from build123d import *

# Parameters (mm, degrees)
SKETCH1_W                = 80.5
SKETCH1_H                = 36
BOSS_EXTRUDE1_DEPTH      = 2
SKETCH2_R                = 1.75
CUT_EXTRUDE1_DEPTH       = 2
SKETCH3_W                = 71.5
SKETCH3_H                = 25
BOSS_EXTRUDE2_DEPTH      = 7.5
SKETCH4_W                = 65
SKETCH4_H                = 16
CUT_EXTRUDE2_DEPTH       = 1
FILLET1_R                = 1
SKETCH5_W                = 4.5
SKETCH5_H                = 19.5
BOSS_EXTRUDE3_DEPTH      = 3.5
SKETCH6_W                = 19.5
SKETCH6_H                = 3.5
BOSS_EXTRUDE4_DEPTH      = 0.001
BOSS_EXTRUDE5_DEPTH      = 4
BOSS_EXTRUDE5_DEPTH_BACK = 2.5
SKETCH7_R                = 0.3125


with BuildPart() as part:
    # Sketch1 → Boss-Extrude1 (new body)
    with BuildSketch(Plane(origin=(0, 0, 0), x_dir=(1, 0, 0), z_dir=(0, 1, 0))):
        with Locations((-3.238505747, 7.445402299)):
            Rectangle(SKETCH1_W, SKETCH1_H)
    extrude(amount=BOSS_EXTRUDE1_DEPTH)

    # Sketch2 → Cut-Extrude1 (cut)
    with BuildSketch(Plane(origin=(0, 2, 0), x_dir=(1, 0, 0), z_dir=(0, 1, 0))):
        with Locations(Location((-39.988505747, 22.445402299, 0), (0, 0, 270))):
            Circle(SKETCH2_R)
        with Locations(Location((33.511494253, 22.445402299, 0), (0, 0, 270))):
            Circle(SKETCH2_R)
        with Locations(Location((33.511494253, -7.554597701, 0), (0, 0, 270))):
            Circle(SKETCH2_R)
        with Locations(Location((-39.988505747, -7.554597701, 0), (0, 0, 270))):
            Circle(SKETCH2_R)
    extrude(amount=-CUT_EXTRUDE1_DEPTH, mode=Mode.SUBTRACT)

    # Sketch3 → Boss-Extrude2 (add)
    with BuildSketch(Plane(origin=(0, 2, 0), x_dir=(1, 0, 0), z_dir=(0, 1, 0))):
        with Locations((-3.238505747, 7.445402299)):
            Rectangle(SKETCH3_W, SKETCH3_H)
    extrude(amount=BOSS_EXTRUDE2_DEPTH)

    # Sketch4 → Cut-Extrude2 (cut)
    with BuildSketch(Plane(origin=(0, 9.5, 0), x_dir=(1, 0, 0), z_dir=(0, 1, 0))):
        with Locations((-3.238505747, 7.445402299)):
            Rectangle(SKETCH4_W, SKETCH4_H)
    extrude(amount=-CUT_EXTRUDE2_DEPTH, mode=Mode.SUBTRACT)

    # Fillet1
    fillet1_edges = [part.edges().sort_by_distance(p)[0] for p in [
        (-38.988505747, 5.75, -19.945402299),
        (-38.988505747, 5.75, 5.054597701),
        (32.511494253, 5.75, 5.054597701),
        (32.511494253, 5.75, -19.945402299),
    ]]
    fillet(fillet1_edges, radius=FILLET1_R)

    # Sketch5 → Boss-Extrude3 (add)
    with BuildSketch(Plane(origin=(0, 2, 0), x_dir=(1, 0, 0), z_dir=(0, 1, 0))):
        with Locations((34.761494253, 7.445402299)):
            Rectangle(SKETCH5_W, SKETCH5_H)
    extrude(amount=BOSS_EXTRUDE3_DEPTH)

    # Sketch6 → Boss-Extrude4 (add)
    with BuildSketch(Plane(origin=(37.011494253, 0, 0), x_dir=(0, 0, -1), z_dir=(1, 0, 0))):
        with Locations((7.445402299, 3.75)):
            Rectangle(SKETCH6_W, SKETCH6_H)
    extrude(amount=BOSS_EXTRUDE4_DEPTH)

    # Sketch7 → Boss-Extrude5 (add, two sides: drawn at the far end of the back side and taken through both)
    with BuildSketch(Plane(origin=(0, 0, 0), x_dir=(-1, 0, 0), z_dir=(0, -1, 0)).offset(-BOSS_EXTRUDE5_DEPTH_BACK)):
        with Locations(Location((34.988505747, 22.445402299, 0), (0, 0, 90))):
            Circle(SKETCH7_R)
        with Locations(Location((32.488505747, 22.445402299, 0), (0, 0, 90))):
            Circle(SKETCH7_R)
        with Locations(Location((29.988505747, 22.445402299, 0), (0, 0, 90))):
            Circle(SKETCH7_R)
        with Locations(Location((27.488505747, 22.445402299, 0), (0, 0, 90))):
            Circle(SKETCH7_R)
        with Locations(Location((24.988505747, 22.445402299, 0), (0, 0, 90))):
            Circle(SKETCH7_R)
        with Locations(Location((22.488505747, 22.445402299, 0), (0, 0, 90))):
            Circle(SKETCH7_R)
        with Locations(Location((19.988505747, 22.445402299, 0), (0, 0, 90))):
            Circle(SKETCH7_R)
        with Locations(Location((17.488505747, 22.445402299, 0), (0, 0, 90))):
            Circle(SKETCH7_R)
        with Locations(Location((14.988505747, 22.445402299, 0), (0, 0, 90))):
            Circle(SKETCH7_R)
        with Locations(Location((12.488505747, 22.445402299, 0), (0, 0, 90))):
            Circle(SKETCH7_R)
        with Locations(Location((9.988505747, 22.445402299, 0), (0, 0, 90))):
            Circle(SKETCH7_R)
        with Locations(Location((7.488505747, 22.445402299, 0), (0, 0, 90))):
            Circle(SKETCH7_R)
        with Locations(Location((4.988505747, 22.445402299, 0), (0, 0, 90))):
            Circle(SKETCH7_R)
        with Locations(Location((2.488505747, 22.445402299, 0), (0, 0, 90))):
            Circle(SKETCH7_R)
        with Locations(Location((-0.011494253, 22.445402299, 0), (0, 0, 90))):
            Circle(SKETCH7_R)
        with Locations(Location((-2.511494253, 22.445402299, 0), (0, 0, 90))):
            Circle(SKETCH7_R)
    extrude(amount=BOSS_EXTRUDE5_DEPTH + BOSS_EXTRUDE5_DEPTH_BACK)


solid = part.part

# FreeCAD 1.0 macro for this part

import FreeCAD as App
import Part
import Sketcher


def edges_at(feature, points):
    """Names of the edges that pass closest to the given points."""
    edges = feature.Shape.Edges
    near = lambda p: min(range(len(edges)), key=lambda i: edges[i].distToShape(Part.Vertex(*p))[0])
    return sorted({f"Edge{near(p) + 1}" for p in points})

doc = App.newDocument("Part")
body = doc.addObject("PartDesign::Body", "Body")

# Sketch on XZ plane
sketch1 = body.newObject("Sketcher::SketchObject", "Sketch")
sketch1.AttachmentSupport = (doc.getObject("XZ_Plane"), [""])
sketch1.MapMode = "FlatFace"
sketch1.addGeometry(Part.LineSegment(App.Vector(-43, -25, 0), App.Vector(-43, 11, 0)), False)
sketch1.addGeometry(Part.LineSegment(App.Vector(-43, 11, 0), App.Vector(37, 11, 0)), False)
sketch1.addGeometry(Part.LineSegment(App.Vector(37, 11, 0), App.Vector(37, -25, 0)), False)
sketch1.addGeometry(Part.LineSegment(App.Vector(37, -25, 0), App.Vector(-43, -25, 0)), False)
sketch1.addConstraint(Sketcher.Constraint("Coincident", 0, 2, 1, 1))
sketch1.addConstraint(Sketcher.Constraint("Coincident", 1, 2, 2, 1))
sketch1.addConstraint(Sketcher.Constraint("Coincident", 2, 2, 3, 1))
sketch1.addConstraint(Sketcher.Constraint("Coincident", 3, 2, 0, 1))
sketch1.addConstraint(Sketcher.Constraint("Vertical", 0))
sketch1.addConstraint(Sketcher.Constraint("Horizontal", 1))
sketch1.addConstraint(Sketcher.Constraint("Vertical", 2))
sketch1.addConstraint(Sketcher.Constraint("Horizontal", 3))
sketch1.addConstraint(Sketcher.Constraint("DistanceY", 0, 1, 0, 2, 36.0))
sketch1.addConstraint(Sketcher.Constraint("DistanceX", 1, 1, 1, 2, 80.5))
sketch1.addConstraint(Sketcher.Constraint("DistanceX", 0, 2, -1, 1, 43.488506))
sketch1.addConstraint(Sketcher.Constraint("DistanceY", -1, 1, 0, 2, 10.554598))
pad1 = body.newObject("PartDesign::Pad", "Pad")
pad1.Profile = sketch1
pad1.Length = 2
pad1.Reversed = True

# Sketch on XZ plane
sketch2 = body.newObject("Sketcher::SketchObject", "Sketch001")
sketch2.AttachmentSupport = (doc.getObject("XZ_Plane"), [""])
sketch2.MapMode = "FlatFace"
sketch2.AttachmentOffset = App.Placement(App.Vector(0, 0, -2), App.Rotation())
sketch2.addGeometry(Part.Circle(App.Vector(-40, -22.4, 0), App.Vector(0, 0, 1), 1.8), False)
sketch2.addGeometry(Part.Circle(App.Vector(33.5, -22.4, 0), App.Vector(0, 0, 1), 1.8), False)
sketch2.addGeometry(Part.Circle(App.Vector(33.5, 7.6, 0), App.Vector(0, 0, 1), 1.8), False)
sketch2.addGeometry(Part.Circle(App.Vector(-40, 7.6, 0), App.Vector(0, 0, 1), 1.8), False)
sketch2.addConstraint(Sketcher.Constraint("Equal", 0, 1))
sketch2.addConstraint(Sketcher.Constraint("Equal", 1, 2))
sketch2.addConstraint(Sketcher.Constraint("Equal", 2, 3))
sketch2.addConstraint(Sketcher.Constraint("Horizontal", 0, 3, 1, 3))
sketch2.addConstraint(Sketcher.Constraint("Horizontal", 2, 3, 3, 3))
sketch2.addConstraint(Sketcher.Constraint("Vertical", 1, 3, 2, 3))
sketch2.addConstraint(Sketcher.Constraint("Vertical", 0, 3, 3, 3))
sketch2.addConstraint(Sketcher.Constraint("Diameter", 0, 3.5))
sketch2.addConstraint(Sketcher.Constraint("DistanceY", 1, 3, 2, 3, 30.0))
sketch2.addConstraint(Sketcher.Constraint("DistanceX", 0, 3, 1, 3, 73.5))
sketch2.addConstraint(Sketcher.Constraint("DistanceX", 0, 3, -1, 1, 39.988506))
sketch2.addConstraint(Sketcher.Constraint("DistanceY", 0, 3, -1, 1, 22.445402))
pocket1 = body.newObject("PartDesign::Pocket", "Pocket")
pocket1.Profile = sketch2
pocket1.Length = 2
pocket1.Reversed = True

# Sketch on XZ plane
sketch3 = body.newObject("Sketcher::SketchObject", "Sketch002")
sketch3.AttachmentSupport = (doc.getObject("XZ_Plane"), [""])
sketch3.MapMode = "FlatFace"
sketch3.AttachmentOffset = App.Placement(App.Vector(0, 0, -2), App.Rotation())
sketch3.addGeometry(Part.LineSegment(App.Vector(-39, -20, 0), App.Vector(-39, 5, 0)), False)
sketch3.addGeometry(Part.LineSegment(App.Vector(-39, 5, 0), App.Vector(33, 5, 0)), False)
sketch3.addGeometry(Part.LineSegment(App.Vector(33, 5, 0), App.Vector(33, -20, 0)), False)
sketch3.addGeometry(Part.LineSegment(App.Vector(33, -20, 0), App.Vector(-39, -20, 0)), False)
sketch3.addConstraint(Sketcher.Constraint("Coincident", 0, 2, 1, 1))
sketch3.addConstraint(Sketcher.Constraint("Coincident", 1, 2, 2, 1))
sketch3.addConstraint(Sketcher.Constraint("Coincident", 2, 2, 3, 1))
sketch3.addConstraint(Sketcher.Constraint("Coincident", 3, 2, 0, 1))
sketch3.addConstraint(Sketcher.Constraint("Vertical", 0))
sketch3.addConstraint(Sketcher.Constraint("Horizontal", 1))
sketch3.addConstraint(Sketcher.Constraint("Vertical", 2))
sketch3.addConstraint(Sketcher.Constraint("Horizontal", 3))
sketch3.addConstraint(Sketcher.Constraint("DistanceY", 0, 1, 0, 2, 25.0))
sketch3.addConstraint(Sketcher.Constraint("DistanceX", 1, 1, 1, 2, 71.5))
sketch3.addConstraint(Sketcher.Constraint("DistanceX", 0, 2, -1, 1, 38.988506))
sketch3.addConstraint(Sketcher.Constraint("DistanceY", -1, 1, 0, 2, 5.054598))
pad2 = body.newObject("PartDesign::Pad", "Pad001")
pad2.Profile = sketch3
pad2.Length = 7.5
pad2.Reversed = True

# Sketch on XZ plane
sketch4 = body.newObject("Sketcher::SketchObject", "Sketch003")
sketch4.AttachmentSupport = (doc.getObject("XZ_Plane"), [""])
sketch4.MapMode = "FlatFace"
sketch4.AttachmentOffset = App.Placement(App.Vector(0, 0, -9.5), App.Rotation())
sketch4.addGeometry(Part.LineSegment(App.Vector(-36, -15, 0), App.Vector(-36, 1, 0)), False)
sketch4.addGeometry(Part.LineSegment(App.Vector(-36, 1, 0), App.Vector(29, 1, 0)), False)
sketch4.addGeometry(Part.LineSegment(App.Vector(29, 1, 0), App.Vector(29, -15, 0)), False)
sketch4.addGeometry(Part.LineSegment(App.Vector(29, -15, 0), App.Vector(-36, -15, 0)), False)
sketch4.addConstraint(Sketcher.Constraint("Coincident", 0, 2, 1, 1))
sketch4.addConstraint(Sketcher.Constraint("Coincident", 1, 2, 2, 1))
sketch4.addConstraint(Sketcher.Constraint("Coincident", 2, 2, 3, 1))
sketch4.addConstraint(Sketcher.Constraint("Coincident", 3, 2, 0, 1))
sketch4.addConstraint(Sketcher.Constraint("Vertical", 0))
sketch4.addConstraint(Sketcher.Constraint("Horizontal", 1))
sketch4.addConstraint(Sketcher.Constraint("Vertical", 2))
sketch4.addConstraint(Sketcher.Constraint("Horizontal", 3))
sketch4.addConstraint(Sketcher.Constraint("DistanceX", 1, 1, 1, 2, 65.0))
sketch4.addConstraint(Sketcher.Constraint("DistanceY", 0, 1, 0, 2, 16.0))
sketch4.addConstraint(Sketcher.Constraint("DistanceX", 0, 2, -1, 1, 35.738506))
sketch4.addConstraint(Sketcher.Constraint("DistanceY", -1, 1, 0, 2, 0.554598))
pocket2 = body.newObject("PartDesign::Pocket", "Pocket001")
pocket2.Profile = sketch4
pocket2.Length = 1
pocket2.Reversed = True
doc.recompute()

fillet = body.newObject("PartDesign::Fillet", "Fillet")
fillet.Base = (pocket2, edges_at(pocket2, [
    (-38.989, 5.75, -19.945),
    (-38.989, 5.75, 5.055),
    (32.511, 5.75, 5.055),
    (32.511, 5.75, -19.945),
]))
fillet.Radius = 1

# Sketch on XZ plane
sketch5 = body.newObject("Sketcher::SketchObject", "Sketch004")
sketch5.AttachmentSupport = (doc.getObject("XZ_Plane"), [""])
sketch5.MapMode = "FlatFace"
sketch5.AttachmentOffset = App.Placement(App.Vector(0, 0, -2), App.Rotation())
sketch5.addGeometry(Part.LineSegment(App.Vector(32.5, -17.2, 0), App.Vector(32.5, 2.3, 0)), False)
sketch5.addGeometry(Part.LineSegment(App.Vector(32.5, 2.3, 0), App.Vector(37, 2.3, 0)), False)
sketch5.addGeometry(Part.LineSegment(App.Vector(37, 2.3, 0), App.Vector(37, -17.2, 0)), False)
sketch5.addGeometry(Part.LineSegment(App.Vector(37, -17.2, 0), App.Vector(32.5, -17.2, 0)), False)
sketch5.addConstraint(Sketcher.Constraint("Coincident", 0, 2, 1, 1))
sketch5.addConstraint(Sketcher.Constraint("Coincident", 1, 2, 2, 1))
sketch5.addConstraint(Sketcher.Constraint("Coincident", 2, 2, 3, 1))
sketch5.addConstraint(Sketcher.Constraint("Coincident", 3, 2, 0, 1))
sketch5.addConstraint(Sketcher.Constraint("Vertical", 0))
sketch5.addConstraint(Sketcher.Constraint("Horizontal", 1))
sketch5.addConstraint(Sketcher.Constraint("Vertical", 2))
sketch5.addConstraint(Sketcher.Constraint("Horizontal", 3))
sketch5.addConstraint(Sketcher.Constraint("DistanceX", 1, 1, 1, 2, 4.5))
sketch5.addConstraint(Sketcher.Constraint("DistanceY", 0, 1, 0, 2, 19.5))
sketch5.addConstraint(Sketcher.Constraint("DistanceX", -1, 1, 0, 2, 32.511494))
sketch5.addConstraint(Sketcher.Constraint("DistanceY", -1, 1, 0, 2, 2.304598))
pad3 = body.newObject("PartDesign::Pad", "Pad002")
pad3.Profile = sketch5
pad3.Length = 3.5
pad3.Reversed = True

# Sketch on YZ plane
sketch6 = body.newObject("Sketcher::SketchObject", "Sketch005")
sketch6.AttachmentSupport = (doc.getObject("YZ_Plane"), [""])
sketch6.MapMode = "FlatFace"
sketch6.AttachmentOffset = App.Placement(App.Vector(0, 0, 37.011494), App.Rotation())
sketch6.addGeometry(Part.LineSegment(App.Vector(5.5, 2.3, 0), App.Vector(2, 2.3, 0)), False)
sketch6.addGeometry(Part.LineSegment(App.Vector(2, 2.3, 0), App.Vector(2, -17.2, 0)), False)
sketch6.addGeometry(Part.LineSegment(App.Vector(2, -17.2, 0), App.Vector(5.5, -17.2, 0)), False)
sketch6.addGeometry(Part.LineSegment(App.Vector(5.5, -17.2, 0), App.Vector(5.5, 2.3, 0)), False)
sketch6.addConstraint(Sketcher.Constraint("Coincident", 0, 2, 1, 1))
sketch6.addConstraint(Sketcher.Constraint("Coincident", 1, 2, 2, 1))
sketch6.addConstraint(Sketcher.Constraint("Coincident", 2, 2, 3, 1))
sketch6.addConstraint(Sketcher.Constraint("Coincident", 3, 2, 0, 1))
sketch6.addConstraint(Sketcher.Constraint("Horizontal", 0))
sketch6.addConstraint(Sketcher.Constraint("Vertical", 1))
sketch6.addConstraint(Sketcher.Constraint("Horizontal", 2))
sketch6.addConstraint(Sketcher.Constraint("Vertical", 3))
sketch6.addConstraint(Sketcher.Constraint("DistanceX", 0, 2, 0, 1, 3.5))
sketch6.addConstraint(Sketcher.Constraint("DistanceY", 1, 2, 1, 1, 19.5))
sketch6.addConstraint(Sketcher.Constraint("DistanceX", -1, 1, 0, 2, 2.0))
sketch6.addConstraint(Sketcher.Constraint("DistanceY", -1, 1, 0, 2, 2.304598))
pad4 = body.newObject("PartDesign::Pad", "Pad003")
pad4.Profile = sketch6
pad4.Length = 0.001

# Sketch on XZ plane
sketch7 = body.newObject("Sketcher::SketchObject", "Sketch006")
sketch7.AttachmentSupport = (doc.getObject("XZ_Plane"), [""])
sketch7.MapMode = "FlatFace"
sketch7.addGeometry(Part.Circle(App.Vector(-34.99, -22.45, 0), App.Vector(0, 0, 1), 0.31), False)
sketch7.addGeometry(Part.Circle(App.Vector(-32.49, -22.45, 0), App.Vector(0, 0, 1), 0.31), False)
sketch7.addGeometry(Part.Circle(App.Vector(-29.99, -22.45, 0), App.Vector(0, 0, 1), 0.31), False)
sketch7.addGeometry(Part.Circle(App.Vector(-27.49, -22.45, 0), App.Vector(0, 0, 1), 0.31), False)
sketch7.addGeometry(Part.Circle(App.Vector(-24.99, -22.45, 0), App.Vector(0, 0, 1), 0.31), False)
sketch7.addGeometry(Part.Circle(App.Vector(-22.49, -22.45, 0), App.Vector(0, 0, 1), 0.31), False)
sketch7.addGeometry(Part.Circle(App.Vector(-19.99, -22.45, 0), App.Vector(0, 0, 1), 0.31), False)
sketch7.addGeometry(Part.Circle(App.Vector(-17.49, -22.45, 0), App.Vector(0, 0, 1), 0.31), False)
sketch7.addGeometry(Part.Circle(App.Vector(-14.99, -22.45, 0), App.Vector(0, 0, 1), 0.31), False)
sketch7.addGeometry(Part.Circle(App.Vector(-12.49, -22.45, 0), App.Vector(0, 0, 1), 0.31), False)
sketch7.addGeometry(Part.Circle(App.Vector(-9.99, -22.45, 0), App.Vector(0, 0, 1), 0.31), False)
sketch7.addGeometry(Part.Circle(App.Vector(-7.49, -22.45, 0), App.Vector(0, 0, 1), 0.31), False)
sketch7.addGeometry(Part.Circle(App.Vector(-4.99, -22.45, 0), App.Vector(0, 0, 1), 0.31), False)
sketch7.addGeometry(Part.Circle(App.Vector(-2.49, -22.45, 0), App.Vector(0, 0, 1), 0.31), False)
sketch7.addGeometry(Part.Circle(App.Vector(0.01, -22.45, 0), App.Vector(0, 0, 1), 0.31), False)
sketch7.addGeometry(Part.Circle(App.Vector(2.51, -22.45, 0), App.Vector(0, 0, 1), 0.31), False)
sketch7.addConstraint(Sketcher.Constraint("Equal", 0, 1))
sketch7.addConstraint(Sketcher.Constraint("Equal", 1, 2))
sketch7.addConstraint(Sketcher.Constraint("Equal", 2, 3))
sketch7.addConstraint(Sketcher.Constraint("Equal", 3, 4))
sketch7.addConstraint(Sketcher.Constraint("Equal", 4, 5))
sketch7.addConstraint(Sketcher.Constraint("Equal", 5, 6))
sketch7.addConstraint(Sketcher.Constraint("Equal", 6, 7))
sketch7.addConstraint(Sketcher.Constraint("Equal", 7, 8))
sketch7.addConstraint(Sketcher.Constraint("Equal", 8, 9))
sketch7.addConstraint(Sketcher.Constraint("Equal", 9, 10))
sketch7.addConstraint(Sketcher.Constraint("Equal", 10, 11))
sketch7.addConstraint(Sketcher.Constraint("Equal", 11, 12))
sketch7.addConstraint(Sketcher.Constraint("Equal", 12, 13))
sketch7.addConstraint(Sketcher.Constraint("Equal", 13, 14))
sketch7.addConstraint(Sketcher.Constraint("Equal", 14, 15))
sketch7.addConstraint(Sketcher.Constraint("Horizontal", 0, 3, 1, 3))
sketch7.addConstraint(Sketcher.Constraint("Horizontal", 1, 3, 2, 3))
sketch7.addConstraint(Sketcher.Constraint("Horizontal", 2, 3, 3, 3))
sketch7.addConstraint(Sketcher.Constraint("Horizontal", 3, 3, 4, 3))
sketch7.addConstraint(Sketcher.Constraint("Horizontal", 4, 3, 5, 3))
sketch7.addConstraint(Sketcher.Constraint("Horizontal", 5, 3, 6, 3))
sketch7.addConstraint(Sketcher.Constraint("Horizontal", 6, 3, 7, 3))
sketch7.addConstraint(Sketcher.Constraint("Horizontal", 7, 3, 8, 3))
sketch7.addConstraint(Sketcher.Constraint("Horizontal", 8, 3, 9, 3))
sketch7.addConstraint(Sketcher.Constraint("Horizontal", 9, 3, 10, 3))
sketch7.addConstraint(Sketcher.Constraint("Horizontal", 10, 3, 11, 3))
sketch7.addConstraint(Sketcher.Constraint("Horizontal", 11, 3, 12, 3))
sketch7.addConstraint(Sketcher.Constraint("Horizontal", 12, 3, 13, 3))
sketch7.addConstraint(Sketcher.Constraint("Horizontal", 13, 3, 14, 3))
sketch7.addConstraint(Sketcher.Constraint("Horizontal", 14, 3, 15, 3))
sketch7.addConstraint(Sketcher.Constraint("Diameter", 0, 0.625))
sketch7.addConstraint(Sketcher.Constraint("DistanceX", 0, 3, 2, 3, 5.0))
sketch7.addConstraint(Sketcher.Constraint("DistanceX", 1, 3, 3, 3, 5.0))
sketch7.addConstraint(Sketcher.Constraint("DistanceX", 2, 3, 4, 3, 5.0))
sketch7.addConstraint(Sketcher.Constraint("DistanceX", 3, 3, 5, 3, 5.0))
sketch7.addConstraint(Sketcher.Constraint("DistanceX", 4, 3, 6, 3, 5.0))
sketch7.addConstraint(Sketcher.Constraint("DistanceX", 5, 3, 7, 3, 5.0))
sketch7.addConstraint(Sketcher.Constraint("DistanceX", 6, 3, 8, 3, 5.0))
sketch7.addConstraint(Sketcher.Constraint("DistanceX", 7, 3, 9, 3, 5.0))
sketch7.addConstraint(Sketcher.Constraint("DistanceX", 8, 3, 10, 3, 5.0))
sketch7.addConstraint(Sketcher.Constraint("DistanceX", 9, 3, 11, 3, 5.0))
sketch7.addConstraint(Sketcher.Constraint("DistanceX", 10, 3, 12, 3, 5.0))
sketch7.addConstraint(Sketcher.Constraint("DistanceX", 11, 3, 13, 3, 5.0))
sketch7.addConstraint(Sketcher.Constraint("DistanceX", 12, 3, 14, 3, 5.0))
sketch7.addConstraint(Sketcher.Constraint("DistanceX", 13, 3, 15, 3, 5.0))
sketch7.addConstraint(Sketcher.Constraint("DistanceX", 0, 3, 1, 3, 2.5))
sketch7.addConstraint(Sketcher.Constraint("DistanceX", 0, 3, -1, 1, 34.988506))
sketch7.addConstraint(Sketcher.Constraint("DistanceY", 0, 3, -1, 1, 22.445402))
pad5 = body.newObject("PartDesign::Pad", "Pad004")
pad5.Profile = sketch7
pad5.Type = "TwoLengths"
pad5.Length = 4
pad5.Length2 = 2.5

doc.recompute()
